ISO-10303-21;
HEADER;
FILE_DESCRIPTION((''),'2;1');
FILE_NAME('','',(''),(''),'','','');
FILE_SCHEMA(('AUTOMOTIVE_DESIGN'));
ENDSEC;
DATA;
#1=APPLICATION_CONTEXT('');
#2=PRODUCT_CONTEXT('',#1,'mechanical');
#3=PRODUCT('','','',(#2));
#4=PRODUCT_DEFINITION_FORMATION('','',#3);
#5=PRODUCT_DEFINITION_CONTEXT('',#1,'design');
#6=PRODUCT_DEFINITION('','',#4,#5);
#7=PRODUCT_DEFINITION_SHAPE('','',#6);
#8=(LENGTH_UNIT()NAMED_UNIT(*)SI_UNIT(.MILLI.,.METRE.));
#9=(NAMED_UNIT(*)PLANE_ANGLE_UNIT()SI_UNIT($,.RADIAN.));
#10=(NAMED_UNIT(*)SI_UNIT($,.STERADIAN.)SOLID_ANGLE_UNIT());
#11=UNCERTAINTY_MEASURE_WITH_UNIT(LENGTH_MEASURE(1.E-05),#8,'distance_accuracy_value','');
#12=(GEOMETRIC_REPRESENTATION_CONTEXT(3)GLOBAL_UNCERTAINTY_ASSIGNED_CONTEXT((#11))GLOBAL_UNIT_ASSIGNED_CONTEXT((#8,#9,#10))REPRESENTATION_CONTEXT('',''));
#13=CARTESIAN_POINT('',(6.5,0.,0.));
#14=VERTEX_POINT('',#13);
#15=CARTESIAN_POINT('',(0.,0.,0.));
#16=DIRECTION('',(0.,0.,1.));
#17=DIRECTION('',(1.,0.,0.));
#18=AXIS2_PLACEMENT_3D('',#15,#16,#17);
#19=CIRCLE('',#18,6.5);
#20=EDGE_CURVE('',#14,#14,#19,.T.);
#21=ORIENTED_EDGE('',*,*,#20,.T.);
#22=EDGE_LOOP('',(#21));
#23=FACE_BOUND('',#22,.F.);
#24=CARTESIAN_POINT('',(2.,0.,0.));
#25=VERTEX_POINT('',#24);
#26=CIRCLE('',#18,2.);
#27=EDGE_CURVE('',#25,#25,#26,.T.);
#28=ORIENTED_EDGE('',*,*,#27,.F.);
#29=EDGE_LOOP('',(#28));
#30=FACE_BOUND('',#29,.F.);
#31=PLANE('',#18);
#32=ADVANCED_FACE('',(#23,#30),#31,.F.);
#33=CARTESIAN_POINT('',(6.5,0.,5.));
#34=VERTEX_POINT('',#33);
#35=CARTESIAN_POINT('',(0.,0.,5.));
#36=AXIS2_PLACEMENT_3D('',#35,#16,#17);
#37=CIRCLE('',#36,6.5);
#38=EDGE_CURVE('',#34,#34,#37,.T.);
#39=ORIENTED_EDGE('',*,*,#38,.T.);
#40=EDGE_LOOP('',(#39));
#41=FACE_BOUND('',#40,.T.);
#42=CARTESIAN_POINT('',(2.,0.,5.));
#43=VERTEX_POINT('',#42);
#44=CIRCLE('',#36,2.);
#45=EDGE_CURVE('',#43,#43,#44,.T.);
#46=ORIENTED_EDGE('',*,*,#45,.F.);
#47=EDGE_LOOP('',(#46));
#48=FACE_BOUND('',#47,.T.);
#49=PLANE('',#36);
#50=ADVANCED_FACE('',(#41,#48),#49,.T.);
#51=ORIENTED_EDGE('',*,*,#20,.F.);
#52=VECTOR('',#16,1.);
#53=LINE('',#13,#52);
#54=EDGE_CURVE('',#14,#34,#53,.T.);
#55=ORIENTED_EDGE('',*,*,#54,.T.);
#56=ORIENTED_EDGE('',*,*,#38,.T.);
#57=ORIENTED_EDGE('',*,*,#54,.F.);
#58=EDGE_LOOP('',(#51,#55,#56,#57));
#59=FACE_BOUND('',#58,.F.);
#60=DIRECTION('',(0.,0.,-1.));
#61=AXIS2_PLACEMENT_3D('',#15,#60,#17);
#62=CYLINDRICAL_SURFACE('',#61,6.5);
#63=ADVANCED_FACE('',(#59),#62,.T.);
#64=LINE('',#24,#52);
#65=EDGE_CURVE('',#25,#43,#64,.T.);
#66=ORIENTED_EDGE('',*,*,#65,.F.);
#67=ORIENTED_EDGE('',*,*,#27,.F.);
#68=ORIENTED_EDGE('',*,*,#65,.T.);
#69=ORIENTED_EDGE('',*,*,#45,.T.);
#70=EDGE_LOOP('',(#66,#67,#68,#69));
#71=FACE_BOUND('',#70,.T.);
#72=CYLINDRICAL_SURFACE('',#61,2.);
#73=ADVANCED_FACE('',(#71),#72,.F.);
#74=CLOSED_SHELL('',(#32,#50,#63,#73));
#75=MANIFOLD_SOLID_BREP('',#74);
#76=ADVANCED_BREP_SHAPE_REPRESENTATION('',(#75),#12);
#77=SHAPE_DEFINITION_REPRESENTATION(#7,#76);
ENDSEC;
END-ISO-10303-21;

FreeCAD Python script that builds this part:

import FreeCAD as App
import Part
import Sketcher

V = App.Vector
Q = App.Units.Quantity

doc = App.newDocument("Part")
params = doc.addObject("Spreadsheet::Sheet", "Params")
for row, (alias, value) in enumerate([
    ("sketch1_diameter", "13 mm"),
    ("sketch1_diameter2", "4 mm"),
    ("pad1_length", "5 mm"),
], start=1):
    params.set(f"A{row}", alias)
    params.set(f"B{row}", "=" + value)
    params.setAlias(f"B{row}", alias)

body = doc.addObject("PartDesign::Body", "Body")

sketch1 = doc.addObject("Sketcher::SketchObject", "Sketch")
body.addObject(sketch1)
sketch1.AttachmentSupport = (doc.XY_Plane, [""])
sketch1.MapMode = "FlatFace"
sketch1.addGeometry([
    Part.Circle(V(0, 0, 0), V(0, 0, 1), 6.5),
    Part.Circle(V(0, 0, 0), V(0, 0, 1), 2),
], False)
sketch1.addConstraint([
    Sketcher.Constraint("Coincident", 0, 3, -1, 1),
    Sketcher.Constraint("Coincident", 1, 3, -1, 1),
    Sketcher.Constraint("Diameter", 0, Q("13 mm")),
    Sketcher.Constraint("Diameter", 1, Q("4 mm")),
])
sketch1.setExpression("Constraints[2]", "Params.sketch1_diameter")
sketch1.setExpression("Constraints[3]", "Params.sketch1_diameter2")
pad1 = doc.addObject("PartDesign::Pad", "Pad")
body.addObject(pad1)
pad1.Profile = sketch1
pad1.setExpression("Length", "Params.pad1_length")

doc.recompute()
